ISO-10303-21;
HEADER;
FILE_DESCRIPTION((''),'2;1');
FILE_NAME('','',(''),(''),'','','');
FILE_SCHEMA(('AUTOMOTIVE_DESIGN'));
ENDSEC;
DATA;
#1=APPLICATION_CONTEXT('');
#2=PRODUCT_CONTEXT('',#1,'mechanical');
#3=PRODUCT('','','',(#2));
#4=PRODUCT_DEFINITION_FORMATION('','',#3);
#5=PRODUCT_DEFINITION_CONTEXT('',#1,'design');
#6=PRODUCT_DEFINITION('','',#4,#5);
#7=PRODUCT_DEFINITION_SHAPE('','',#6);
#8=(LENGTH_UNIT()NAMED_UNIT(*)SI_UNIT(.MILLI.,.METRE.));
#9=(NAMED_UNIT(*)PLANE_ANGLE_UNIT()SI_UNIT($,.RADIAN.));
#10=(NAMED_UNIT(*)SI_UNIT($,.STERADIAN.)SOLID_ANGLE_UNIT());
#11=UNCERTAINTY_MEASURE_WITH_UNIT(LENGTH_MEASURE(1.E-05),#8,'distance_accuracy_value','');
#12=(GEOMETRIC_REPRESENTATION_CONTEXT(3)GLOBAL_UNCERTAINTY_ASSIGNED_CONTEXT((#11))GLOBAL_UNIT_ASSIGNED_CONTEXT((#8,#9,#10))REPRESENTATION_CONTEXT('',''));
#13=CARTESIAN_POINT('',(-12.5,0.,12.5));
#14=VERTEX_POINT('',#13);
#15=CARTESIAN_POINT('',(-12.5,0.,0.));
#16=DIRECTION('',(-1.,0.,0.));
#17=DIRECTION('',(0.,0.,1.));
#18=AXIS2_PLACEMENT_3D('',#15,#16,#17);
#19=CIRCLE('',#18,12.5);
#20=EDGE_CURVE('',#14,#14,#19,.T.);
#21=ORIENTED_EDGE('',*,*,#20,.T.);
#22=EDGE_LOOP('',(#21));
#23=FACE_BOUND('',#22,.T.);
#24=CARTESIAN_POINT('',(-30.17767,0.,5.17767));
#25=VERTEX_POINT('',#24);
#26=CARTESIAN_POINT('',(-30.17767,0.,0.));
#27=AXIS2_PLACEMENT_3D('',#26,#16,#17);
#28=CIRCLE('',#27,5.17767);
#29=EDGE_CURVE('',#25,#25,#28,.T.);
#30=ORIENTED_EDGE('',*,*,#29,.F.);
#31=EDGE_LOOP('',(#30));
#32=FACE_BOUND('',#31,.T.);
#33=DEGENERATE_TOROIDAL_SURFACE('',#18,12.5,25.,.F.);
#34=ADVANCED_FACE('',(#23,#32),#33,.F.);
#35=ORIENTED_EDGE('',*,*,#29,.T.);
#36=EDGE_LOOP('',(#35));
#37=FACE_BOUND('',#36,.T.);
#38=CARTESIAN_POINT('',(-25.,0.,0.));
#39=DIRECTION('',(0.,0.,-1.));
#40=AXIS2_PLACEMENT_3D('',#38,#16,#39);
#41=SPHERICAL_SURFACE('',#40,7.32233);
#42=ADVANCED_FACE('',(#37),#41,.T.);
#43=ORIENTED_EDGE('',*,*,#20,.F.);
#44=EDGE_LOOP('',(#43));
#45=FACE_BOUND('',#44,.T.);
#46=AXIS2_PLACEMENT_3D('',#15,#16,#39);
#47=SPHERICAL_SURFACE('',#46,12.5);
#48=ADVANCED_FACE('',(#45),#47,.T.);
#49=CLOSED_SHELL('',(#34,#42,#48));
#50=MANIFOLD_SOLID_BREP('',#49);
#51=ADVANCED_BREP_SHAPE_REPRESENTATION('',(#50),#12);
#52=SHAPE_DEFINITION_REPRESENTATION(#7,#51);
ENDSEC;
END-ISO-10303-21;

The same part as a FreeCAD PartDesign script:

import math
import FreeCAD as App
import Part
import Sketcher

V = App.Vector
Q = App.Units.Quantity

doc = App.newDocument("Part")
params = doc.addObject("Spreadsheet::Sheet", "Params")
for row, (alias, value) in enumerate([
    ("sketch1_radius", "25 mm"),
    ("sketch1_radius2", "12.5 mm"),
    ("revolution_angle", "360 deg"),
], start=1):
    params.set(f"A{row}", alias)
    params.set(f"B{row}", "=" + value)
    params.setAlias(f"B{row}", alias)

body = doc.addObject("PartDesign::Body", "Body")

sketch1 = doc.addObject("Sketcher::SketchObject", "Sketch")
body.addObject(sketch1)
sketch1.AttachmentSupport = (doc.XZ_Plane, [""])
sketch1.MapMode = "FlatFace"
sketch1.addGeometry([
    Part.LineSegment(V(-32.32233, 0, 0), V(0, 0, 0)),
    Part.ArcOfCircle(Part.Circle(V(-12.5, 0, 0), V(0, 0, 1), 12.5), math.radians(-90), math.radians(0)),
    Part.ArcOfCircle(Part.Circle(V(-12.5, 12.5, 0), V(0, 0, 1), 25), math.radians(-135), math.radians(-90)),
    Part.ArcOfCircle(Part.Circle(V(-25, 0, 0), V(0, 0, 1), 7.32233), math.radians(180), math.radians(225)),
], False)
sketch1.addConstraint([
    Sketcher.Constraint("Coincident", 0, 2, 1, 2),
    Sketcher.Constraint("Tangent", 1, 1, 2, 2),
    Sketcher.Constraint("Tangent", 2, 1, 3, 2),
    Sketcher.Constraint("Coincident", 3, 1, 0, 1),
    Sketcher.Constraint("Horizontal", 0),
    Sketcher.Constraint("Coincident", 0, 2, -1, 1),
    Sketcher.Constraint("PointOnObject", 1, 3, -1),
    Sketcher.Constraint("PointOnObject", 3, 3, -1),
    Sketcher.Constraint("Vertical", 1, 3, 2, 3),
    Sketcher.Constraint("Radius", 2, Q("25 mm")),
    Sketcher.Constraint("Radius", 1, Q("12.5 mm")),
    Sketcher.Constraint("DistanceX", 3, 3, -1, 1, Q("25 mm")),
])
sketch1.setExpression("Constraints[9]", "Params.sketch1_radius")
sketch1.setExpression("Constraints[10]", "Params.sketch1_radius2")
revolution = doc.addObject("PartDesign::Revolution", "Revolution")
body.addObject(revolution)
revolution.Profile = sketch1
revolution.ReferenceAxis = (sketch1, ["H_Axis"])
revolution.setExpression("Angle", "Params.revolution_angle")

doc.recompute()
